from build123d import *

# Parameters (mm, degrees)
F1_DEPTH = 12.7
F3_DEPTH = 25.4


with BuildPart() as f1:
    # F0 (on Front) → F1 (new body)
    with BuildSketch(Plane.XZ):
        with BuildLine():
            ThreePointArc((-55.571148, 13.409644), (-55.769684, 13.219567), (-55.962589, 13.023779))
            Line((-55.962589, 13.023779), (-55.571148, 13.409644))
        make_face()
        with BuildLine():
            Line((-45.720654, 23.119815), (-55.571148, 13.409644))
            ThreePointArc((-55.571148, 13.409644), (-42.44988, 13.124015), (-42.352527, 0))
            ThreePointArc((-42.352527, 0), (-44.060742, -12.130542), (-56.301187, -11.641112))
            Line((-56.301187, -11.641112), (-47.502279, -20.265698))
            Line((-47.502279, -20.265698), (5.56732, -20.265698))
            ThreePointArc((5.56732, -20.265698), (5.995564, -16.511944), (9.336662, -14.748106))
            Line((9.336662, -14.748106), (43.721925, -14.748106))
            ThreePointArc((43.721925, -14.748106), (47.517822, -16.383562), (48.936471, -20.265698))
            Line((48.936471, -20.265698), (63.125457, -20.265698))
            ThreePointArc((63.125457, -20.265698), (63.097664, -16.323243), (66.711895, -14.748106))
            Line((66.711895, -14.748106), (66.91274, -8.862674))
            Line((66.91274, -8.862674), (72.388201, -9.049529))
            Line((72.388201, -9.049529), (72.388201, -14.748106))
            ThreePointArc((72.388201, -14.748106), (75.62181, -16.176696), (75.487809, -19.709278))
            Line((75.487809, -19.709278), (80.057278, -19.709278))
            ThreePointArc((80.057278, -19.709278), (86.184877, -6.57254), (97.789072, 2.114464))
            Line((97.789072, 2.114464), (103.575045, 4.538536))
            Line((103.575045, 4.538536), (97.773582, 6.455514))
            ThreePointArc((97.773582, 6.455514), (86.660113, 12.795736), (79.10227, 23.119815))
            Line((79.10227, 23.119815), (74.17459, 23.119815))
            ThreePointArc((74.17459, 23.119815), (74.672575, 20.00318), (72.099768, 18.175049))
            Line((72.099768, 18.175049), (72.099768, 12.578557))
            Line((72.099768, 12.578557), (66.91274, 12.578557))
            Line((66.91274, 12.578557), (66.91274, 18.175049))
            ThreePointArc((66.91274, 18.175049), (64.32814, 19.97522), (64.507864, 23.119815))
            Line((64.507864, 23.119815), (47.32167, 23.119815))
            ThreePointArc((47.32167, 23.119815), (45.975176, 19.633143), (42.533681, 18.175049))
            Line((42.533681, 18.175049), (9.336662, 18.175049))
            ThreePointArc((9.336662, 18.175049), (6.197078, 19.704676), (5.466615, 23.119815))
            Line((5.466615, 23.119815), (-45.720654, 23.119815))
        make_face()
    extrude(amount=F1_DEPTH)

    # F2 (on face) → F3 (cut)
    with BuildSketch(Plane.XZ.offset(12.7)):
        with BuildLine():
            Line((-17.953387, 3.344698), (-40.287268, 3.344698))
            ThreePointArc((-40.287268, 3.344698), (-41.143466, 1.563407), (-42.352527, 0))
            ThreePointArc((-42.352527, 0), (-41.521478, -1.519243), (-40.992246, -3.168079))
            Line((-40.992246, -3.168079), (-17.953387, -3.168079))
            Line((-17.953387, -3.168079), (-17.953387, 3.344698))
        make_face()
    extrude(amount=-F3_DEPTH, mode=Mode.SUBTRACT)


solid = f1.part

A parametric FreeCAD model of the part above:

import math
import FreeCAD as App
import Part
import Sketcher
from FreeCAD import Vector
Q = App.Units.Quantity

doc = App.newDocument("Part")
body = doc.addObject("PartDesign::Body", "Body")
body.AllowCompound = True

sketch1 = body.newObject("Sketcher::SketchObject", "Sketch")
sketch1.AttachmentSupport = (doc.getObject("XZ_Plane"), [""])
sketch1.MapMode = "FlatFace"
sketch1.addGeometry([
    Part.ArcOfCircle(Part.Circle(Vector(-49.157109, 6.511436, 0), Vector(0, 0, 1), 9.419404), math.radians(132.917062), math.radians(136.26093)),
    Part.LineSegment(Vector(-55.962589, 13.023779, 0), Vector(-55.571148, 13.409644, 0)),
    Part.LineSegment(Vector(-45.720654, 23.119815, 0), Vector(-55.571148, 13.409644, 0)),
    Part.ArcOfCircle(Part.Circle(Vector(-49.157558, 6.511889, 0), Vector(0, 0, 1), 9.418766), math.radians(-43.738967), math.radians(132.916936)),
    Part.ArcOfCircle(Part.Circle(Vector(-49.910485, -5.121239, 0), Vector(0, 0, 1), 9.129612), math.radians(-134.426774), math.radians(34.121395)),
    Part.LineSegment(Vector(-56.301187, -11.641112, 0), Vector(-47.502279, -20.265698, 0)),
    Part.LineSegment(Vector(-47.502279, -20.265698, 0), Vector(5.56732, -20.265698, 0)),
    Part.ArcOfCircle(Part.Circle(Vector(9.336663, -18.794416, 0), Vector(0, 0, 1), 4.04631), math.radians(90.000019), math.radians(201.322123)),
    Part.LineSegment(Vector(9.336662, -14.748106, 0), Vector(43.721925, -14.748106, 0)),
    Part.ArcOfCircle(Part.Circle(Vector(43.721927, -19.970972, 0), Vector(0, 0, 1), 5.222866), math.radians(-3.23491), math.radians(90.00002)),
    Part.LineSegment(Vector(48.936471, -20.265698, 0), Vector(63.125457, -20.265698, 0)),
    Part.ArcOfCircle(Part.Circle(Vector(66.09793, -18.273418, 0), Vector(0, 0, 1), 3.578376), math.radians(80.120506), math.radians(213.831712)),
    Part.LineSegment(Vector(66.711895, -14.748106, 0), Vector(66.91274, -8.862674, 0)),
    Part.LineSegment(Vector(66.91274, -8.862674, 0), Vector(72.388201, -9.049529, 0)),
    Part.LineSegment(Vector(72.388201, -9.049529, 0), Vector(72.388201, -14.748106, 0)),
    Part.ArcOfCircle(Part.Circle(Vector(72.952704, -17.844282, 0), Vector(0, 0, 1), 3.147216), math.radians(-36.340741), math.radians(100.332828)),
    Part.LineSegment(Vector(75.487809, -19.709278, 0), Vector(80.057278, -19.709278, 0)),
    Part.ArcOfCircle(Part.Circle(Vector(109.29544, -25.349876, 0), Vector(0, 0, 1), 29.777281), math.radians(112.731572), math.radians(169.080699)),
    Part.LineSegment(Vector(97.789072, 2.114464, 0), Vector(103.575045, 4.538536, 0)),
    Part.LineSegment(Vector(103.575045, 4.538536, 0), Vector(97.773582, 6.455514, 0)),
    Part.ArcOfCircle(Part.Circle(Vector(107.07434, 35.668607, 0), Vector(0, 0, 1), 30.657934), math.radians(-155.838107), math.radians(-107.660246)),
    Part.LineSegment(Vector(79.10227, 23.119815, 0), Vector(74.17459, 23.119815, 0)),
    Part.ArcOfCircle(Part.Circle(Vector(71.914291, 21.160556, 0), Vector(0, 0, 1), 2.991262), math.radians(-86.445014), math.radians(40.919207)),
    Part.LineSegment(Vector(72.099768, 18.175049, 0), Vector(72.099768, 12.578557, 0)),
    Part.LineSegment(Vector(72.099768, 12.578557, 0), Vector(66.91274, 12.578557, 0)),
    Part.LineSegment(Vector(66.91274, 12.578557, 0), Vector(66.91274, 18.175049, 0)),
    Part.ArcOfCircle(Part.Circle(Vector(67.230494, 21.386774, 0), Vector(0, 0, 1), 3.227406), math.radians(147.521953), math.radians(264.349786)),
    Part.LineSegment(Vector(64.507864, 23.119815, 0), Vector(47.32167, 23.119815, 0)),
    Part.ArcOfCircle(Part.Circle(Vector(42.533682, 22.965523, 0), Vector(0, 0, 1), 4.790474), math.radians(-90.000006), math.radians(1.845708)),
    Part.LineSegment(Vector(42.533681, 18.175049, 0), Vector(9.336662, 18.175049, 0)),
    Part.ArcOfCircle(Part.Circle(Vector(9.336664, 22.16189, 0), Vector(0, 0, 1), 3.986841), math.radians(166.09742), math.radians(269.999972)),
    Part.LineSegment(Vector(5.466615, 23.119815, 0), Vector(-45.720654, 23.119815, 0)),
], False)
sketch1.addConstraint([
    Sketcher.Constraint("Coincident", 0, 1, 1, 2),
    Sketcher.Constraint("Coincident", 1, 1, 0, 2),
    Sketcher.Constraint("Coincident", 2, 2, 3, 2),
    Sketcher.Constraint("Coincident", 3, 1, 4, 2),
    Sketcher.Constraint("Coincident", 4, 1, 5, 1),
    Sketcher.Constraint("Coincident", 5, 2, 6, 1),
    Sketcher.Constraint("Coincident", 6, 2, 7, 2),
    Sketcher.Constraint("Coincident", 7, 1, 8, 1),
    Sketcher.Constraint("Coincident", 8, 2, 9, 2),
    Sketcher.Constraint("Coincident", 9, 1, 10, 1),
    Sketcher.Constraint("Coincident", 10, 2, 11, 2),
    Sketcher.Constraint("Coincident", 11, 1, 12, 1),
    Sketcher.Constraint("Coincident", 12, 2, 13, 1),
    Sketcher.Constraint("Coincident", 13, 2, 14, 1),
    Sketcher.Constraint("Coincident", 14, 2, 15, 2),
    Sketcher.Constraint("Coincident", 15, 1, 16, 1),
    Sketcher.Constraint("Coincident", 16, 2, 17, 2),
    Sketcher.Constraint("Coincident", 17, 1, 18, 1),
    Sketcher.Constraint("Coincident", 18, 2, 19, 1),
    Sketcher.Constraint("Coincident", 19, 2, 20, 2),
    Sketcher.Constraint("Coincident", 20, 1, 21, 1),
    Sketcher.Constraint("Coincident", 21, 2, 22, 2),
    Sketcher.Constraint("Coincident", 22, 1, 23, 1),
    Sketcher.Constraint("Coincident", 23, 2, 24, 1),
    Sketcher.Constraint("Coincident", 24, 2, 25, 1),
    Sketcher.Constraint("Coincident", 25, 2, 26, 2),
    Sketcher.Constraint("Coincident", 26, 1, 27, 1),
    Sketcher.Constraint("Coincident", 27, 2, 28, 2),
    Sketcher.Constraint("Coincident", 28, 1, 29, 1),
    Sketcher.Constraint("Coincident", 29, 2, 30, 2),
    Sketcher.Constraint("Coincident", 30, 1, 31, 1),
    Sketcher.Constraint("Coincident", 31, 2, 2, 1),
    Sketcher.Constraint("Horizontal", 6),
    Sketcher.Constraint("Horizontal", 8),
    Sketcher.Constraint("Horizontal", 10),
    Sketcher.Constraint("Vertical", 14),
    Sketcher.Constraint("Horizontal", 16),
    Sketcher.Constraint("Horizontal", 21),
    Sketcher.Constraint("Vertical", 23),
    Sketcher.Constraint("Horizontal", 24),
    Sketcher.Constraint("Vertical", 25),
    Sketcher.Constraint("Horizontal", 27),
    Sketcher.Constraint("Horizontal", 29),
    Sketcher.Constraint("Horizontal", 31),
    Sketcher.Constraint("Coincident", 2, 2, 0, 1),
    Sketcher.Constraint("PointOnObject", 3, 1, -1),
    Sketcher.Constraint("Radius", 7, Q("4.04631 mm")),
    Sketcher.Constraint("Radius", 17, Q("29.777281 mm")),
    Sketcher.Constraint("Radius", 30, Q("3.986841 mm")),
    Sketcher.Constraint("DistanceX", 6, 1, 6, 2, Q("53.069599 mm")),
    Sketcher.Constraint("Radius", 0, Q("9.419404 mm")),
    Sketcher.Constraint("Radius", 3, Q("9.418766 mm")),
    Sketcher.Constraint("Radius", 4, Q("9.129612 mm")),
    Sketcher.Constraint("Radius", 9, Q("5.222866 mm")),
    Sketcher.Constraint("Radius", 11, Q("3.578376 mm")),
    Sketcher.Constraint("Radius", 15, Q("3.147216 mm")),
    Sketcher.Constraint("Radius", 20, Q("30.657934 mm")),
    Sketcher.Constraint("Radius", 22, Q("2.991262 mm")),
    Sketcher.Constraint("Radius", 26, Q("3.227406 mm")),
    Sketcher.Constraint("Radius", 28, Q("4.790474 mm")),
    Sketcher.Constraint("DistanceX", 0, 3, 11, 3, Q("4.5375999 in")),
    Sketcher.Constraint("DistanceX", 16, 1, 16, 2, Q("4.569469 mm")),
    Sketcher.Constraint("DistanceX", 21, 2, 21, 1, Q("4.92768 mm")),
    Sketcher.Constraint("DistanceX", 29, 2, 29, 1, Q("33.197019 mm")),
    Sketcher.Constraint("DistanceX", 31, 2, 31, 1, Q("51.187269 mm")),
    Sketcher.Constraint("DistanceY", 5, 2, -1, 1, Q("20.265698 mm")),
    Sketcher.Constraint("DistanceY", 9, 1, -1, 1, Q("20.265698 mm")),
    Sketcher.Constraint("DistanceX", -1, 1, 13, 2, Q("72.388201 mm")),
    Sketcher.Constraint("DistanceX", 20, 3, 17, 3, Q("2.2211 mm")),
    Sketcher.Constraint("DistanceY", 4, 1, 3, 3, Q("18.153001 mm")),
    Sketcher.Constraint("DistanceX", 4, 1, 1, 1, Q("0.338598 mm")),
    Sketcher.Constraint("DistanceY", 19, 2, 20, 1, Q("16.664301 mm")),
    Sketcher.Constraint("DistanceX", 20, 1, 17, 1, Q("18.686802 mm")),
    Sketcher.Constraint("DistanceX", 22, 3, 21, 2, Q("2.260299 mm")),
    Sketcher.Constraint("DistanceY", 23, 2, 22, 3, Q("8.581999 mm")),
    Sketcher.Constraint("Distance", 13, Q("5.478648 mm")),
    Sketcher.Constraint("DistanceX", 8, 1, 8, 2, Q("34.385263 mm")),
    Sketcher.Constraint("DistanceX", 10, 1, 10, 2, Q("14.188986 mm")),
    Sketcher.Constraint("DistanceX", 24, 2, 24, 1, Q("5.187028 mm")),
    Sketcher.Constraint("DistanceX", 27, 2, 27, 1, Q("17.186194 mm")),
    Sketcher.Constraint("DistanceY", 14, 2, 14, 1, Q("5.698577 mm")),
    Sketcher.Constraint("DistanceY", 23, 2, 23, 1, Q("5.596492 mm")),
    Sketcher.Constraint("DistanceY", 25, 1, 25, 2, Q("5.596492 mm")),
    Sketcher.Constraint("DistanceX", 0, 3, -1, 1, Q("49.157109 mm")),
    Sketcher.Constraint("DistanceX", 3, 3, -1, 1, Q("49.157558 mm")),
    Sketcher.Constraint("DistanceY", -1, 1, 3, 3, Q("6.511889 mm")),
    Sketcher.Constraint("DistanceY", 4, 3, -1, 1, Q("5.121239 mm")),
    Sketcher.Constraint("DistanceY", 15, 3, -1, 1, Q("17.844282 mm")),
    Sketcher.Constraint("DistanceX", -1, 1, 17, 3, Q("109.29544 mm")),
    Sketcher.Constraint("DistanceX", -1, 1, 22, 3, Q("71.914291 mm")),
    Sketcher.Constraint("DistanceX", -1, 1, 28, 3, Q("42.533682 mm")),
    Sketcher.Constraint("DistanceY", -1, 1, 30, 3, Q("22.16189 mm")),
    Sketcher.Constraint("DistanceX", 5, 2, -1, 1, Q("47.502279 mm")),
    Sketcher.Constraint("DistanceX", -1, 1, 9, 1, Q("48.936471 mm")),
    Sketcher.Constraint("DistanceX", -1, 1, 12, 2, Q("66.91274 mm")),
    Sketcher.Constraint("DistanceY", 13, 2, -1, 1, Q("9.049529 mm")),
    Sketcher.Constraint("DistanceX", -1, 1, 15, 1, Q("75.487809 mm")),
    Sketcher.Constraint("DistanceY", -1, 1, 22, 1, Q("18.175049 mm")),
    Sketcher.Constraint("DistanceX", -1, 1, 27, 2, Q("47.32167 mm")),
    Sketcher.Constraint("DistanceX", -1, 1, 28, 1, Q("42.533681 mm")),
    Sketcher.Constraint("DistanceX", 4, 3, 7, 3, Q("59.247148 mm")),
    Sketcher.Constraint("DistanceX", 30, 3, 26, 3, Q("57.893831 mm")),
    Sketcher.Constraint("DistanceX", 0, 1, 3, 3, Q("6.41359 mm")),
    Sketcher.Constraint("DistanceX", 7, 1, 28, 3, Q("33.19702 mm")),
    Sketcher.Constraint("DistanceY", 11, 3, 11, 1, Q("3.525312 mm")),
    Sketcher.Constraint("DistanceY", 17, 3, 18, 2, Q("29.888412 mm")),
    Sketcher.Constraint("DistanceX", 30, 1, 30, 3, Q("3.870049 mm")),
    Sketcher.Constraint("Distance", 18, Q("6.273245 mm")),
])
pad1 = body.newObject("PartDesign::Pad", "Pad")
pad1.Profile = sketch1
pad1.Length = Q("0.5 in")

sketch2 = body.newObject("Sketcher::SketchObject", "Sketch001")
sketch2.AttachmentSupport = (doc.getObject("XZ_Plane"), [""])
sketch2.MapMode = "FlatFace"
sketch2.AttachmentOffset = App.Placement(Vector(0, 0, 0.5 * 25.4), App.Rotation())
sketch2.addGeometry([
    Part.LineSegment(Vector(-18, 3.3, 0), Vector(-40.3, 3.3, 0)),
    Part.ArcOfCircle(Part.Circle(Vector(-49.2, 6.5, 0), Vector(0, 0, 1), 9.4), math.radians(-44), math.radians(-20)),
    Part.ArcOfCircle(Part.Circle(Vector(-49.9, -5.1, 0), Vector(0, 0, 1), 9.1), math.radians(12), math.radians(34)),
    Part.LineSegment(Vector(-41, -3.2, 0), Vector(-18, -3.2, 0)),
    Part.LineSegment(Vector(-18, -3.2, 0), Vector(-18, 3.3, 0)),
], False)
sketch2.addConstraint([
    Sketcher.Constraint("Coincident", 0, 2, 1, 2),
    Sketcher.Constraint("Coincident", 1, 1, 2, 2),
    Sketcher.Constraint("Coincident", 2, 1, 3, 1),
    Sketcher.Constraint("Coincident", 3, 2, 4, 1),
    Sketcher.Constraint("Coincident", 4, 2, 0, 1),
    Sketcher.Constraint("Horizontal", 0),
    Sketcher.Constraint("Horizontal", 3),
    Sketcher.Constraint("Vertical", 4),
    Sketcher.Constraint("PointOnObject", 1, 1, -1),
    Sketcher.Constraint("Radius", 2, Q("9.12963 mm")),
    Sketcher.Constraint("Radius", 1, Q("9.418765 mm")),
    Sketcher.Constraint("DistanceX", 0, 2, 0, 1, Q("22.333881 mm")),
    Sketcher.Constraint("DistanceX", 3, 1, 3, 2, Q("23.038859 mm")),
    Sketcher.Constraint("DistanceX", 2, 3, -1, 1, Q("49.910501 mm")),
    Sketcher.Constraint("DistanceY", -1, 1, 0, 2, Q("3.344698 mm")),
    Sketcher.Constraint("DistanceY", 4, 1, 4, 2, Q("6.512777 mm")),
    Sketcher.Constraint("DistanceY", -1, 1, 1, 3, Q("6.511888 mm")),
])
pocket1 = body.newObject("PartDesign::Pocket", "Pocket")
pocket1.Profile = sketch2
pocket1.Length = Q("1 in")

doc.recompute()
